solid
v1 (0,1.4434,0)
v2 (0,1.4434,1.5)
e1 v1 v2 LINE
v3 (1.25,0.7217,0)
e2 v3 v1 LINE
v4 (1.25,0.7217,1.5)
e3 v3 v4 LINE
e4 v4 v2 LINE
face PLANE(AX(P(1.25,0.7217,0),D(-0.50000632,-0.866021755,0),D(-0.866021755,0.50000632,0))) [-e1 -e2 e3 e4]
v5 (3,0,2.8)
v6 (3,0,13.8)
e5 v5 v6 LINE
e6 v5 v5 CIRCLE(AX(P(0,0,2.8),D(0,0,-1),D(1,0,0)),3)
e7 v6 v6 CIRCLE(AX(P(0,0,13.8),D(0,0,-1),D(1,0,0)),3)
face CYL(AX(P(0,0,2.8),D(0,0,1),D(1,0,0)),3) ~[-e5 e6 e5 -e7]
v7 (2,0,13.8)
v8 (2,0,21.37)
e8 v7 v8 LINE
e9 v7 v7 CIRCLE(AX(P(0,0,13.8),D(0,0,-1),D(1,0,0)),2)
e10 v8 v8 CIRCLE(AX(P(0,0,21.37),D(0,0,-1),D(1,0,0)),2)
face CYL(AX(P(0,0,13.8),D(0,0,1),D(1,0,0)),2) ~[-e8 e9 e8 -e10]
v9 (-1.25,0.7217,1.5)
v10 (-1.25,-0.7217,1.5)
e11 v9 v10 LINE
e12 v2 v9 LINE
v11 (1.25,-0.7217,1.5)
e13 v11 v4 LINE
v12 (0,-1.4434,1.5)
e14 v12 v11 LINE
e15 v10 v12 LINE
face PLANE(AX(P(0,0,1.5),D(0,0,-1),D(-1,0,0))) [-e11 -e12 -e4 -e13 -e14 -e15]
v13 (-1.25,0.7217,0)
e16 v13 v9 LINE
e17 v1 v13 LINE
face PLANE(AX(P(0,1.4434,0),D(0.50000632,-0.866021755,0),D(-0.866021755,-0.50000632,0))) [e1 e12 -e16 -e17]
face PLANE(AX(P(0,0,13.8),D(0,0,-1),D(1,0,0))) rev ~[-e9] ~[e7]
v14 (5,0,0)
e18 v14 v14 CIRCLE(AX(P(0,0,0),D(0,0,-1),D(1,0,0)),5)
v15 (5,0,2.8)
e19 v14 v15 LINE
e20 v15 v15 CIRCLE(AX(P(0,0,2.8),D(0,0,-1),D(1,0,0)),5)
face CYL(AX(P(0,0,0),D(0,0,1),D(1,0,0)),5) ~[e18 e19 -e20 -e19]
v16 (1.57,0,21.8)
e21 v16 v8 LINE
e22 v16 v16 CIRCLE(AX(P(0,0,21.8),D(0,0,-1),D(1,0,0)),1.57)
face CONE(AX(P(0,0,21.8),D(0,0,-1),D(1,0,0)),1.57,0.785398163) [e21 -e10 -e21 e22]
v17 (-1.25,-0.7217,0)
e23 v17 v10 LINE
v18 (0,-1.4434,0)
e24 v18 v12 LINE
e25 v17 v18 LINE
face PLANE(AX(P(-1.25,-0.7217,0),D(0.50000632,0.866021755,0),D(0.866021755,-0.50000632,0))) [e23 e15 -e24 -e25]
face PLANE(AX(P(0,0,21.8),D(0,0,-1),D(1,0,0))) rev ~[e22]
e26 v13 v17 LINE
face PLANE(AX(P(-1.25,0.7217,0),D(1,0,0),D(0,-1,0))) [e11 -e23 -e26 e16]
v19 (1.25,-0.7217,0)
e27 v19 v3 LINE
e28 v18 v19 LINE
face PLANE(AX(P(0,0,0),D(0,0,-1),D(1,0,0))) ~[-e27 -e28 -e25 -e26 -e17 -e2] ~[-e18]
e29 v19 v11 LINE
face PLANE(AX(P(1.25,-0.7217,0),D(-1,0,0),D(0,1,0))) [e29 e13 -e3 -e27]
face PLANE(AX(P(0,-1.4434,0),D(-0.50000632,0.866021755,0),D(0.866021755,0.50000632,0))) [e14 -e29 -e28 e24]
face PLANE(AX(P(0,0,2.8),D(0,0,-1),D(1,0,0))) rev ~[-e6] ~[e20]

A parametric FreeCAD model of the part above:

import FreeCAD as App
import Part
import Sketcher
from FreeCAD import Vector
Q = App.Units.Quantity


def add_polygon(sketch, points):
    """Adds a closed chain of lines whose ends are joined by coincident constraints."""
    first, n = sketch.GeometryCount, len(points)
    for a, b in zip(points, points[1:] + points[:1]):
        sketch.addGeometry(Part.LineSegment(App.Vector(*a, 0), App.Vector(*b, 0)), False)
    for i in range(n):
        sketch.addConstraint(Sketcher.Constraint("Coincident", first + i, 2, first + (i + 1) % n, 1))

doc = App.newDocument("Part")
params = doc.addObject("Spreadsheet::Sheet", "Params")
for row, (alias, value) in enumerate([
    ("sketch1_height", "11 mm"),
    ("sketch1_height2", "2.8 mm"),
    ("sketch1_width", "5 mm"),
    ("sketch1_width2", "1 mm"),
    ("sketch1_width3", "2 mm"),
    ("revolution_angle", "360 deg"),
    ("pocket1_length", "1.5 mm"),
], start=1):
    params.set(f"A{row}", alias)
    params.set(f"B{row}", "=" + value)
    params.setAlias(f"B{row}", alias)

body = doc.addObject("PartDesign::Body", "Body")

sketch1 = body.newObject("Sketcher::SketchObject", "Sketch")
sketch1.AttachmentSupport = (doc.getObject("XZ_Plane"), [""])
sketch1.MapMode = "FlatFace"
add_polygon(sketch1, [(5, 0), (0, 0), (0, 21.8), (1.57, 21.8), (2, 21.37), (2, 13.8), (3, 13.8), (3, 2.8), (5, 2.8)])
sketch1.addConstraint(Sketcher.Constraint("Horizontal", 0))
sketch1.addConstraint(Sketcher.Constraint("Vertical", 1))
sketch1.addConstraint(Sketcher.Constraint("Horizontal", 2))
sketch1.addConstraint(Sketcher.Constraint("Vertical", 4))
sketch1.addConstraint(Sketcher.Constraint("Horizontal", 5))
sketch1.addConstraint(Sketcher.Constraint("Vertical", 6))
sketch1.addConstraint(Sketcher.Constraint("Horizontal", 7))
sketch1.addConstraint(Sketcher.Constraint("Vertical", 8))
sketch1.addConstraint(Sketcher.Constraint("Coincident", 0, 2, -1, 1))
sketch1.addConstraint(Sketcher.Constraint("DistanceY", 6, 2, 6, 1, 11.0))
sketch1.addConstraint(Sketcher.Constraint("DistanceY", 8, 2, 8, 1, 2.8))
sketch1.addConstraint(Sketcher.Constraint("DistanceY", 4, 2, 2, 2, 8.0))
sketch1.addConstraint(Sketcher.Constraint("DistanceX", 0, 2, 0, 1, 5.0))
sketch1.addConstraint(Sketcher.Constraint("DistanceX", 5, 1, 5, 2, 1.0))
sketch1.addConstraint(Sketcher.Constraint("DistanceX", 7, 1, 7, 2, 2.0))
sketch1.addConstraint(Sketcher.Constraint("Angle", 3, Q("-45 deg")))
sketch1.addConstraint(Sketcher.Constraint("DistanceX", 2, 2, 3, 2, 0.43))
sketch1.setExpression("Constraints[18]", "Params.sketch1_height")
sketch1.setExpression("Constraints[19]", "Params.sketch1_height2")
sketch1.setExpression("Constraints[21]", "Params.sketch1_width")
sketch1.setExpression("Constraints[22]", "Params.sketch1_width2")
sketch1.setExpression("Constraints[23]", "Params.sketch1_width3")
revolution = body.newObject("PartDesign::Revolution", "Revolution")
revolution.Profile = sketch1
revolution.ReferenceAxis = (sketch1, ["V_Axis"])
revolution.setExpression("Angle", "Params.revolution_angle")

sketch2 = body.newObject("Sketcher::SketchObject", "Sketch001")
sketch2.AttachmentSupport = (doc.getObject("XY_Plane"), [""])
sketch2.MapMode = "FlatFace"
add_polygon(sketch2, [(1.25, -0.7217), (0, -1.4434), (-1.25, -0.7217), (-1.25, 0.7217), (0, 1.4434), (1.25, 0.7217)])
sketch2.addConstraint(Sketcher.Constraint("Vertical", 2))
sketch2.addConstraint(Sketcher.Constraint("Vertical", 5))
sketch2.addConstraint(Sketcher.Constraint("Symmetric", 0, 2, 3, 2, -1, 1))
sketch2.addConstraint(Sketcher.Constraint("Symmetric", 1, 2, 4, 2, -1, 1))
sketch2.addConstraint(Sketcher.Constraint("PointOnObject", 0, 2, -2))
sketch2.addConstraint(Sketcher.Constraint("Parallel", 0, 3))
sketch2.addConstraint(Sketcher.Constraint("Horizontal", 2, 2, 4, 2))
sketch2.addConstraint(Sketcher.Constraint("DistanceX", 2, 2, 4, 2, 2.5))
sketch2.addConstraint(Sketcher.Constraint("Angle", 0, Q("-149.9996 deg")))
sketch2.addConstraint(Sketcher.Constraint("DistanceY", 2, 1, 2, 2, 1.4434))
pocket1 = body.newObject("PartDesign::Pocket", "Pocket")
pocket1.Profile = sketch2
pocket1.setExpression("Length", "Params.pocket1_length")
pocket1.Reversed = True

doc.recompute()
